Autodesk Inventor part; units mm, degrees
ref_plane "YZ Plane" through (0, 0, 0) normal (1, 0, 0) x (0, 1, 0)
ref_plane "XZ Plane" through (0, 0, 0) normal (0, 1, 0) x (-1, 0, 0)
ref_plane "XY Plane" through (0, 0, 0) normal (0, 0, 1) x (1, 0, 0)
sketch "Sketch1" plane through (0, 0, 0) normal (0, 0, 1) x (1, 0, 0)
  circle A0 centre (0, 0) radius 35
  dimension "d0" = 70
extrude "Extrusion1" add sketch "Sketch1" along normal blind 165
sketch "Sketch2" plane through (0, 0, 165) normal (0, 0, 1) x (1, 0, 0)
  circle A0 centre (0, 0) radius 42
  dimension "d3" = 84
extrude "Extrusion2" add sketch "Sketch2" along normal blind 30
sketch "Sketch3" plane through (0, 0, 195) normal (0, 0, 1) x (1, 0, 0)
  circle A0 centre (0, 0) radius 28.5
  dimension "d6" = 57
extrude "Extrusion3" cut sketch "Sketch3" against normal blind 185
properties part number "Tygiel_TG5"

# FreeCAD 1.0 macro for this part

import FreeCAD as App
import Part
import Sketcher
from FreeCAD import Vector
Q = App.Units.Quantity

doc = App.newDocument("Part")
body = doc.addObject("PartDesign::Body", "Body")

sketch1 = doc.addObject("Sketcher::SketchObject", "Sketch")
body.addObject(sketch1)
sketch1.AttachmentSupport = (doc.XY_Plane, [""])
sketch1.MapMode = "FlatFace"
sketch1.addGeometry(Part.Circle(Vector(0, 0, 0), Vector(0, 0, 1), 35), False)
sketch1.addConstraint([
    Sketcher.Constraint("Coincident", 0, 3, -1, 1),
    Sketcher.Constraint("Diameter", 0, Q("70 mm")),
])
pad1 = doc.addObject("PartDesign::Pad", "Pad")
body.addObject(pad1)
pad1.Profile = sketch1
pad1.Length = 165

sketch2 = doc.addObject("Sketcher::SketchObject", "Sketch001")
body.addObject(sketch2)
sketch2.AttachmentSupport = (doc.XY_Plane, [""])
sketch2.MapMode = "FlatFace"
sketch2.AttachmentOffset = App.Placement(Vector(0, 0, 165), App.Rotation())
sketch2.addGeometry(Part.Circle(Vector(0, 0, 0), Vector(0, 0, 1), 42), False)
sketch2.addConstraint([
    Sketcher.Constraint("Coincident", 0, 3, -1, 1),
    Sketcher.Constraint("Diameter", 0, Q("84 mm")),
])
pad2 = doc.addObject("PartDesign::Pad", "Pad001")
body.addObject(pad2)
pad2.Profile = sketch2
pad2.Length = 30

sketch3 = doc.addObject("Sketcher::SketchObject", "Sketch002")
body.addObject(sketch3)
sketch3.AttachmentSupport = (doc.XY_Plane, [""])
sketch3.MapMode = "FlatFace"
sketch3.AttachmentOffset = App.Placement(Vector(0, 0, 195), App.Rotation())
sketch3.addGeometry(Part.Circle(Vector(0, 0, 0), Vector(0, 0, 1), 28), False)
sketch3.addConstraint([
    Sketcher.Constraint("Coincident", 0, 3, -1, 1),
    Sketcher.Constraint("Diameter", 0, Q("57 mm")),
])
pocket1 = doc.addObject("PartDesign::Pocket", "Pocket")
body.addObject(pocket1)
pocket1.Profile = sketch3
pocket1.Length = 185

doc.recompute()
